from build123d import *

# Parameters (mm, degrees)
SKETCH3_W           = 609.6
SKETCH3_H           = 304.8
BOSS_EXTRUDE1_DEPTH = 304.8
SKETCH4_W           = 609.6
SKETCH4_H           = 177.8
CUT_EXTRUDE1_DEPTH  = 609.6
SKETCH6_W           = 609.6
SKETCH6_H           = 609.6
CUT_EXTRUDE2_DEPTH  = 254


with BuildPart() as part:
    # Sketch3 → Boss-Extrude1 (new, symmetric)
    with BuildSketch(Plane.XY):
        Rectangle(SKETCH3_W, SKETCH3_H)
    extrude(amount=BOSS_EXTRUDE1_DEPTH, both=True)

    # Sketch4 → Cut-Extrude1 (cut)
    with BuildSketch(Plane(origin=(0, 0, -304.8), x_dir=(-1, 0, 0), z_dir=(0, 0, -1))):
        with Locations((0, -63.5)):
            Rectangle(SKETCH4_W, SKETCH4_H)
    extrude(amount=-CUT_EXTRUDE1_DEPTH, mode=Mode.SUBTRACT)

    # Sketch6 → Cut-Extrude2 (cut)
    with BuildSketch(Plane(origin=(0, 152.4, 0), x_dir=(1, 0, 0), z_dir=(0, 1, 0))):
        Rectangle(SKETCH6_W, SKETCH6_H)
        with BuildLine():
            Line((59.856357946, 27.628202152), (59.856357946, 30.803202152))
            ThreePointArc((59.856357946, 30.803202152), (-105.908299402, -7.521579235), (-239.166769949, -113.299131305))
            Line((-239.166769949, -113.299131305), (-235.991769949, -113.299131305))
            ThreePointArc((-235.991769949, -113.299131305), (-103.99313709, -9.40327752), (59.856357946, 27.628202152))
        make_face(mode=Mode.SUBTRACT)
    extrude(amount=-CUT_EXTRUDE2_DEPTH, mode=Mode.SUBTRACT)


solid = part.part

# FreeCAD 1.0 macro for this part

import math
import FreeCAD as App
import Part
import Sketcher
Q = App.Units.Quantity


def add_polygon(sketch, points):
    """Adds a closed chain of lines whose ends are joined by coincident constraints."""
    first, n = sketch.GeometryCount, len(points)
    for a, b in zip(points, points[1:] + points[:1]):
        sketch.addGeometry(Part.LineSegment(App.Vector(*a, 0), App.Vector(*b, 0)), False)
    for i in range(n):
        sketch.addConstraint(Sketcher.Constraint("Coincident", first + i, 2, first + (i + 1) % n, 1))

doc = App.newDocument("Part")
body = doc.addObject("PartDesign::Body", "Body")

# Sketch on XY plane
sketch1 = body.newObject("Sketcher::SketchObject", "Sketch")
sketch1.AttachmentSupport = (doc.getObject("XY_Plane"), [""])
sketch1.MapMode = "FlatFace"
add_polygon(sketch1, [(-305, 152), (-305, -152), (305, -152), (305, 152)])  # lines 0-3
sketch1.addConstraint(Sketcher.Constraint("Vertical", 0))
sketch1.addConstraint(Sketcher.Constraint("Horizontal", 1))
sketch1.addConstraint(Sketcher.Constraint("Vertical", 2))
sketch1.addConstraint(Sketcher.Constraint("Horizontal", 3))
sketch1.addConstraint(Sketcher.Constraint("Symmetric", 0, 2, 2, 2, -1, 1))
sketch1.addConstraint(Sketcher.Constraint("DistanceX", 1, 1, 1, 2, Q("24 in")))
sketch1.addConstraint(Sketcher.Constraint("DistanceY", 0, 2, 0, 1, Q("12 in")))
pad1 = body.newObject("PartDesign::Pad", "Pad")
pad1.Profile = sketch1
pad1.Length = Q("24 in")
pad1.Midplane = True

# Sketch on XY plane
sketch2 = body.newObject("Sketcher::SketchObject", "Sketch001")
sketch2.AttachmentSupport = (doc.getObject("XY_Plane"), [""])
sketch2.MapMode = "FlatFace"
sketch2.AttachmentOffset = App.Placement(App.Vector(0, 0, -12 * 25.4), App.Rotation())
add_polygon(sketch2, [(305, 25), (305, -152), (-305, -152), (-305, 25)])  # lines 0-3
sketch2.addConstraint(Sketcher.Constraint("Vertical", 0))
sketch2.addConstraint(Sketcher.Constraint("Horizontal", 1))
sketch2.addConstraint(Sketcher.Constraint("Vertical", 2))
sketch2.addConstraint(Sketcher.Constraint("Horizontal", 3))
sketch2.addConstraint(Sketcher.Constraint("DistanceX", 1, 2, 1, 1, Q("24 in")))
sketch2.addConstraint(Sketcher.Constraint("DistanceY", 0, 2, 0, 1, Q("7 in")))
sketch2.addConstraint(Sketcher.Constraint("DistanceX", -1, 1, 0, 2, Q("12 in")))
sketch2.addConstraint(Sketcher.Constraint("DistanceY", 0, 2, -1, 1, Q("6 in")))
pocket1 = body.newObject("PartDesign::Pocket", "Pocket")
pocket1.Profile = sketch2
pocket1.Length = Q("24 in")
pocket1.Reversed = True

# Sketch on XZ plane
sketch3 = body.newObject("Sketcher::SketchObject", "Sketch002")
sketch3.AttachmentSupport = (doc.getObject("XZ_Plane"), [""])
sketch3.MapMode = "FlatFace"
sketch3.AttachmentOffset = App.Placement(App.Vector(0, 0, -6 * 25.4), App.Rotation())
add_polygon(sketch3, [(-304.8, -304.8), (-304.8, 304.8), (304.8, 304.8), (304.8, -304.8)])  # lines 0-3
sketch3.addGeometry(Part.LineSegment(App.Vector(59.9, -30.8, 0), App.Vector(59.9, -27.6, 0)), False)  # 4
sketch3.addGeometry(Part.ArcOfCircle(Part.Circle(App.Vector(59.9, 353.4, 0), App.Vector(0, 0, 1), 381), math.radians(-141), math.radians(-90)), False)  # 5
sketch3.addGeometry(Part.LineSegment(App.Vector(-236, 113.3, 0), App.Vector(-239.2, 113.3, 0)), False)  # 6
sketch3.addGeometry(Part.ArcOfCircle(Part.Circle(App.Vector(61.9, 355.8, 0), App.Vector(0, 0, 1), 386.6), math.radians(-141), math.radians(-90)), False)  # 7
sketch3.addConstraint(Sketcher.Constraint("Coincident", 4, 2, 5, 2))
sketch3.addConstraint(Sketcher.Constraint("Coincident", 5, 1, 6, 1))
sketch3.addConstraint(Sketcher.Constraint("Coincident", 6, 2, 7, 1))
sketch3.addConstraint(Sketcher.Constraint("Coincident", 7, 2, 4, 1))
sketch3.addConstraint(Sketcher.Constraint("Vertical", 0))
sketch3.addConstraint(Sketcher.Constraint("Horizontal", 1))
sketch3.addConstraint(Sketcher.Constraint("Vertical", 2))
sketch3.addConstraint(Sketcher.Constraint("Horizontal", 3))
sketch3.addConstraint(Sketcher.Constraint("Vertical", 4))
sketch3.addConstraint(Sketcher.Constraint("Horizontal", 6))
sketch3.addConstraint(Sketcher.Constraint("Symmetric", 0, 2, 2, 2, -1, 1))
sketch3.addConstraint(Sketcher.Constraint("Vertical", 5, 3, 4, 2))
sketch3.addConstraint(Sketcher.Constraint("Equal", 3, 0))
sketch3.addConstraint(Sketcher.Constraint("Equal", 6, 4))
sketch3.addConstraint(Sketcher.Constraint("Radius", 5, Q("15 in")))
sketch3.addConstraint(Sketcher.Constraint("DistanceX", 1, 1, 1, 2, Q("24 in")))
sketch3.addConstraint(Sketcher.Constraint("DistanceX", 6, 2, 6, 1, Q("0.125 in")))
sketch3.addConstraint(Sketcher.Constraint("Radius", 7, Q("386.591412 mm")))
sketch3.addConstraint(Sketcher.Constraint("DistanceY", -1, 1, 7, 3, Q("355.78269 mm")))
sketch3.addConstraint(Sketcher.Constraint("DistanceX", 5, 1, -1, 1, Q("235.99177 mm")))
sketch3.addConstraint(Sketcher.Constraint("DistanceY", -1, 1, 6, 2, Q("113.299131 mm")))
pocket2 = body.newObject("PartDesign::Pocket", "Pocket001")
pocket2.Profile = sketch3
pocket2.Length = Q("10 in")
pocket2.Reversed = True

doc.recompute()
